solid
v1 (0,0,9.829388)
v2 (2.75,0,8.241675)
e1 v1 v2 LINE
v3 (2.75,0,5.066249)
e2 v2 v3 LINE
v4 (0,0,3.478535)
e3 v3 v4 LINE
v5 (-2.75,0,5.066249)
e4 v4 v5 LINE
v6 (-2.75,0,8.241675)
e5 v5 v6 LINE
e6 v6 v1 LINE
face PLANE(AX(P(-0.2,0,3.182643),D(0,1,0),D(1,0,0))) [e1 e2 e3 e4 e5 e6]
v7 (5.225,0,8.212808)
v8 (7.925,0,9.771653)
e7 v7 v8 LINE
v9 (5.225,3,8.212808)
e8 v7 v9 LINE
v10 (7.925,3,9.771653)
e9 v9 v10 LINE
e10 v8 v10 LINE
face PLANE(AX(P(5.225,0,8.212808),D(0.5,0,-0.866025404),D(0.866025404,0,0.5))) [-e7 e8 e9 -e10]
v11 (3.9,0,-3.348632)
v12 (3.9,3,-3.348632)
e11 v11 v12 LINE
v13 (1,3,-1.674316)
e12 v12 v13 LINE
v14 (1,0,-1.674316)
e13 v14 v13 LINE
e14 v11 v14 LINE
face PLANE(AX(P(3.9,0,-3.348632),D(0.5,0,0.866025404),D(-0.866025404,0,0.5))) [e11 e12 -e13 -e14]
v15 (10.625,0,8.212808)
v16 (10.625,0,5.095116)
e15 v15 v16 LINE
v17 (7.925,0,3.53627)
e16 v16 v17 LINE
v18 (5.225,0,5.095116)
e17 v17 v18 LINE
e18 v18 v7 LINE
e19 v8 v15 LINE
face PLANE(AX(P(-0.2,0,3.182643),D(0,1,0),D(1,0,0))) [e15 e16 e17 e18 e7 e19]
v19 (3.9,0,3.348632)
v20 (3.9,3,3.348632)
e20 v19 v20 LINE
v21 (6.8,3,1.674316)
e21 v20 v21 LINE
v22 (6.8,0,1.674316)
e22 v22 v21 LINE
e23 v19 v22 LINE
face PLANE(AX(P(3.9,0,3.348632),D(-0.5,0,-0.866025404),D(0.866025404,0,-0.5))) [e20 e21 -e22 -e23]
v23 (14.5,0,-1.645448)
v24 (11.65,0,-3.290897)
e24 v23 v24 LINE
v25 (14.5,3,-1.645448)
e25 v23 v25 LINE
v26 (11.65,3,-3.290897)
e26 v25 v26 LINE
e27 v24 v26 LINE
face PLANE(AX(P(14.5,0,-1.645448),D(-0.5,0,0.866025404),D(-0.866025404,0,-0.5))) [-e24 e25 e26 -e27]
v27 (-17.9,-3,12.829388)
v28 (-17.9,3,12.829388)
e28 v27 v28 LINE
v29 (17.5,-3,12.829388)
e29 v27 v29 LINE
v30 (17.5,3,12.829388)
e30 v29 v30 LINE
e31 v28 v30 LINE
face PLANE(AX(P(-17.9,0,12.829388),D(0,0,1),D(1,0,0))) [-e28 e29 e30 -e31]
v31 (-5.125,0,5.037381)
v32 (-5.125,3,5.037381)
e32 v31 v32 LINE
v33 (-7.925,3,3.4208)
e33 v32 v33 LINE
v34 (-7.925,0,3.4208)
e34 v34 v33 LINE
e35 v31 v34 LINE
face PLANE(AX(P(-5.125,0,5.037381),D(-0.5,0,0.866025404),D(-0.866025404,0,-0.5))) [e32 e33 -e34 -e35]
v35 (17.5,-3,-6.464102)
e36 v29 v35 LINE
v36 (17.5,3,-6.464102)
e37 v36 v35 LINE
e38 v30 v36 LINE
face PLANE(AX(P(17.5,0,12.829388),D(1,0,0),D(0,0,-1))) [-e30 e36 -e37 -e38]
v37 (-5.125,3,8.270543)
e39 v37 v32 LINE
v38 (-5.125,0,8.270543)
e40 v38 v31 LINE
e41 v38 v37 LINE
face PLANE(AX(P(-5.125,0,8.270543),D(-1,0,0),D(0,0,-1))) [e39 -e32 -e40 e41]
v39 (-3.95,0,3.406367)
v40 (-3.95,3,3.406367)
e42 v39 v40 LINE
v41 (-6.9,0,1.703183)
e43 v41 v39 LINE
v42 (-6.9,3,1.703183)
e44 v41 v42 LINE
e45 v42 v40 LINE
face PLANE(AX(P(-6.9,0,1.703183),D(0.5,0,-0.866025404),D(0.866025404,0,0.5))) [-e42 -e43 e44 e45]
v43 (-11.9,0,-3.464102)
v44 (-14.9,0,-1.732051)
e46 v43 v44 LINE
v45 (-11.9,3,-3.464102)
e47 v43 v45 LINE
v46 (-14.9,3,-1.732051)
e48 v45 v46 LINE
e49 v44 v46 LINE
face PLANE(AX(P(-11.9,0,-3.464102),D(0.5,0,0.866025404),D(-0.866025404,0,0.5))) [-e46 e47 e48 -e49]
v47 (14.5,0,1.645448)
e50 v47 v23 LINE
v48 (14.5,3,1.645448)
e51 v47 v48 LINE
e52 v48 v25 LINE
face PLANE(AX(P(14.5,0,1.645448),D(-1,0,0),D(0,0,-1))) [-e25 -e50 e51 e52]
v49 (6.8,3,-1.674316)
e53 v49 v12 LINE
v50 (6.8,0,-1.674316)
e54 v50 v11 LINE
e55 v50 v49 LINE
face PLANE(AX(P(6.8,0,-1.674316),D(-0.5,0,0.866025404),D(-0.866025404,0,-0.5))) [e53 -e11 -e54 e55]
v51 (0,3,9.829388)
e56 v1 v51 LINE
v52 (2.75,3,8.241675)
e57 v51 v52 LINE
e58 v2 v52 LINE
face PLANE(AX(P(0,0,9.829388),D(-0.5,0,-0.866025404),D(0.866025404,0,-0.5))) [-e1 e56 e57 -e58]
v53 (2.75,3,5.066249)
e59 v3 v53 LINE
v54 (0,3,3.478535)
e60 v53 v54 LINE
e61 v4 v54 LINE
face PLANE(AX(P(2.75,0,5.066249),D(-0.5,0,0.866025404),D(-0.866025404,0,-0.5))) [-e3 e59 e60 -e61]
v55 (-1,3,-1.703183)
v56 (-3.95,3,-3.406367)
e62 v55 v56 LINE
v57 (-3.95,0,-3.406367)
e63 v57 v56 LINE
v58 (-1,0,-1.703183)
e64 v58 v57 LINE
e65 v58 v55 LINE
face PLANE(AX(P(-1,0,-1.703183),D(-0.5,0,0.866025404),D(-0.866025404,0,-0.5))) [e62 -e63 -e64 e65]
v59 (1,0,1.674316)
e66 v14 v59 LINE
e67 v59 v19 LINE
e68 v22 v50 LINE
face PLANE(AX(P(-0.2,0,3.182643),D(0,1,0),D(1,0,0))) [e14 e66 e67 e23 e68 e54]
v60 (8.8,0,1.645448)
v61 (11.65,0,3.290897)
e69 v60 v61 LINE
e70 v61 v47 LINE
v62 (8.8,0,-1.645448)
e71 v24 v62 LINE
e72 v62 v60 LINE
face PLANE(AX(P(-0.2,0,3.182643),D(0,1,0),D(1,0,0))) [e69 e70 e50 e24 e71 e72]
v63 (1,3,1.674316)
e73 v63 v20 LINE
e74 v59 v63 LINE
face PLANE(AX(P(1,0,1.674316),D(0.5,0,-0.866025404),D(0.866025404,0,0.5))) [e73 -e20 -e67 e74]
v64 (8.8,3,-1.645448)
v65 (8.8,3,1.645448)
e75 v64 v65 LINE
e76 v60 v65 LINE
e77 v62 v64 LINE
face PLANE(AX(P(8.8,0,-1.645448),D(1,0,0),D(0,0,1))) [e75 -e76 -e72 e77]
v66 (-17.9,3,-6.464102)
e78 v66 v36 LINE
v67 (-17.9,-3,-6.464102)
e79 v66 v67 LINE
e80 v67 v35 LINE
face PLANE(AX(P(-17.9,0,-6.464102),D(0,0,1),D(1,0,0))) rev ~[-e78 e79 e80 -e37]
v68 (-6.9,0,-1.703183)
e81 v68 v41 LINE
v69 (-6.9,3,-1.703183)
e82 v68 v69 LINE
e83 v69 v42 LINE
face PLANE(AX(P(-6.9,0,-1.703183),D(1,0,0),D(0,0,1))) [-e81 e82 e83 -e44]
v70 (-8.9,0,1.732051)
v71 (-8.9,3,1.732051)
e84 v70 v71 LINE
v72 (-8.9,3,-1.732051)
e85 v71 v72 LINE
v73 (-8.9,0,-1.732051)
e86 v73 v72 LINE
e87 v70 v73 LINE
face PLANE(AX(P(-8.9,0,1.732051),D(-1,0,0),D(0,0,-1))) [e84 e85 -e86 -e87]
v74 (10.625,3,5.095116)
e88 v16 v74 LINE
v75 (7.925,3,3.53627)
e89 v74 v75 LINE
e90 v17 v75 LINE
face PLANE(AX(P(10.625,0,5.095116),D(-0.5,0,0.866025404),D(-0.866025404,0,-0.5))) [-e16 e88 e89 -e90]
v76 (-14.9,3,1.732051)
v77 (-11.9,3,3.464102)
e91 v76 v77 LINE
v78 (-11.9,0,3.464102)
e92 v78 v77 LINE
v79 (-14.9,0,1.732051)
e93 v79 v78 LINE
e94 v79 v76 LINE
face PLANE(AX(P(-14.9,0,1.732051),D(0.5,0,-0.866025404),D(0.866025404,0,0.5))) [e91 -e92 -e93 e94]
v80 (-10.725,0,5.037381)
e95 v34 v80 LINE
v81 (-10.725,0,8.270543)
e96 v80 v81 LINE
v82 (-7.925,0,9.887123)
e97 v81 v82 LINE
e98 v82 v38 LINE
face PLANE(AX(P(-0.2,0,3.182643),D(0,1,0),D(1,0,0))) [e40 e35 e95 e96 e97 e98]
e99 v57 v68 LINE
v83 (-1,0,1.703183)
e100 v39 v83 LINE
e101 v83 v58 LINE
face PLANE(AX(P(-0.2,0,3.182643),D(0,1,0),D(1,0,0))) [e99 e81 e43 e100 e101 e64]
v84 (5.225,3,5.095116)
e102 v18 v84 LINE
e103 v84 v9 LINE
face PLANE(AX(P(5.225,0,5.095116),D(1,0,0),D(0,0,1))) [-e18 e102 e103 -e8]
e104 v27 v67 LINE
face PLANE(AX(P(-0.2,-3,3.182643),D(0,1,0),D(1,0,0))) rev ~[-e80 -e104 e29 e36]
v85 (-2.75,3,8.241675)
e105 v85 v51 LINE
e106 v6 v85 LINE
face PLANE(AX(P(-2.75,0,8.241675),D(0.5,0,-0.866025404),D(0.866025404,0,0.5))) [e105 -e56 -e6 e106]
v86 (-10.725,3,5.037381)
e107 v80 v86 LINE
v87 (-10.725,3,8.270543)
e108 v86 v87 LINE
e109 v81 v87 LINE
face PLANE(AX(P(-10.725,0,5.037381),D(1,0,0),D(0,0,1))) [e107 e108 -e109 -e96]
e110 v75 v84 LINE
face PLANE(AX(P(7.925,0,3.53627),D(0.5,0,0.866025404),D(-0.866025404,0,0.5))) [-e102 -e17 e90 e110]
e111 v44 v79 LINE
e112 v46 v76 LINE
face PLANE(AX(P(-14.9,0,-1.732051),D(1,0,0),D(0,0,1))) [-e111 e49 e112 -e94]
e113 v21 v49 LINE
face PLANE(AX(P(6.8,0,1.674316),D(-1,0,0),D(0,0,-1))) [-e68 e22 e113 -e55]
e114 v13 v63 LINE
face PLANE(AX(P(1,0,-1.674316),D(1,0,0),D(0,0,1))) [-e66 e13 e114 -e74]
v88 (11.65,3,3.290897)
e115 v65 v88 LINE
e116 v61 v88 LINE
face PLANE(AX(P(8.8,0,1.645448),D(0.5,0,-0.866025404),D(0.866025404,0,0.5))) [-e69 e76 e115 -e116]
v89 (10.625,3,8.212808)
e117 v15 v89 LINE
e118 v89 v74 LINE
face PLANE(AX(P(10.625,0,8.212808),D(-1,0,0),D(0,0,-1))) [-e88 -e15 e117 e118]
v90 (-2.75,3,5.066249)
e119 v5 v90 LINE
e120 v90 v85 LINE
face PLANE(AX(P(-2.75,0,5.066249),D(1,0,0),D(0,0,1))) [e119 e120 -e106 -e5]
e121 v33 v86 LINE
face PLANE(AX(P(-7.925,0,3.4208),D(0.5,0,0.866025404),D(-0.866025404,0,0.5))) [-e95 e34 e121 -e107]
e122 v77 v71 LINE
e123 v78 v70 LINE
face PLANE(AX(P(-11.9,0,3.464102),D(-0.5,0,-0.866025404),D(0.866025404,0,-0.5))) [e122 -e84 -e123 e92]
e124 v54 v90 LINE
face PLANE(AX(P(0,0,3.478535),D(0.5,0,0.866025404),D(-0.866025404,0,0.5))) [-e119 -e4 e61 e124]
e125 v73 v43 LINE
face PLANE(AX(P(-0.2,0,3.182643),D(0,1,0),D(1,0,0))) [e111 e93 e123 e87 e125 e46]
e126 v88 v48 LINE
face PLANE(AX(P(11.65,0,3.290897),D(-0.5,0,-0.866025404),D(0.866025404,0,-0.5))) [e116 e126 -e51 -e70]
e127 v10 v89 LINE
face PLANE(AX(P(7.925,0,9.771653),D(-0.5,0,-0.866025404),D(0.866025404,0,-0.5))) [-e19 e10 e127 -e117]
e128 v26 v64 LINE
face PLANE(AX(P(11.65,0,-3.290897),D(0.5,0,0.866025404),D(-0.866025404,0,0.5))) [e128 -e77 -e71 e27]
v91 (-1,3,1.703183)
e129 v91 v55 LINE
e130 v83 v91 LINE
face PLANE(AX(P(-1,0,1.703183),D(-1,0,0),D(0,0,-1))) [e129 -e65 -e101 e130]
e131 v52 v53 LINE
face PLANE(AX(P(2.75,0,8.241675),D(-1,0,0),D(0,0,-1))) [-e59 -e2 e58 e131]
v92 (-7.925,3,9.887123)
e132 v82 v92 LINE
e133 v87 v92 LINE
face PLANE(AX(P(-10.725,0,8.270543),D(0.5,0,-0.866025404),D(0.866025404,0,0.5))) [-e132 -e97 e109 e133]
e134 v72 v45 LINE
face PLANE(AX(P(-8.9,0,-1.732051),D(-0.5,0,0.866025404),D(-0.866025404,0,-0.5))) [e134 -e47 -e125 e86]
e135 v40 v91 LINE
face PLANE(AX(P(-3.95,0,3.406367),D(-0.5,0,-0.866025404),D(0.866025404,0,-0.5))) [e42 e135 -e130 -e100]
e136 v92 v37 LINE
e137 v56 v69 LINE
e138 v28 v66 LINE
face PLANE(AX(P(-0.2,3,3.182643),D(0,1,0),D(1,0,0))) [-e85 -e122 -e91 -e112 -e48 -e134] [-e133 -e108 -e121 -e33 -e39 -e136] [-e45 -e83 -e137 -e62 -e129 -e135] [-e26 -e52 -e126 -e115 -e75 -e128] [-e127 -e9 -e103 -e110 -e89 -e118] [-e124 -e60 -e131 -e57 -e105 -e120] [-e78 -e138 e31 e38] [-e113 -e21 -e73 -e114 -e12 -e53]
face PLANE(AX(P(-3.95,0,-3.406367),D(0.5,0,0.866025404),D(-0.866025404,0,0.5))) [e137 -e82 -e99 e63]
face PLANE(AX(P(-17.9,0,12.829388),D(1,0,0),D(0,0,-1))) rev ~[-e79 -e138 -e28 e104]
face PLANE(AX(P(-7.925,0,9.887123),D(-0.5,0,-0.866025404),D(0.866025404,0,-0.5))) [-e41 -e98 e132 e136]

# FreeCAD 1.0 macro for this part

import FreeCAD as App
import Part
import Sketcher
from FreeCAD import Vector
Q = App.Units.Quantity


def add_polygon(sketch, points):
    """Adds a closed chain of lines whose ends are joined by coincident constraints."""
    first, n = sketch.GeometryCount, len(points)
    for a, b in zip(points, points[1:] + points[:1]):
        sketch.addGeometry(Part.LineSegment(App.Vector(*a, 0), App.Vector(*b, 0)), False)
    for i in range(n):
        sketch.addConstraint(Sketcher.Constraint("Coincident", first + i, 2, first + (i + 1) % n, 1))

doc = App.newDocument("Part")
body = doc.addObject("PartDesign::Body", "Body")

sketch1 = body.newObject("Sketcher::SketchObject", "Sketch")
sketch1.AttachmentSupport = (doc.getObject("XZ_Plane"), [""])
sketch1.MapMode = "FlatFace"
add_polygon(sketch1, [(-17.9, -6.464102), (-17.9, 12.829388), (17.5, 12.829388), (17.5, -6.464102)])
add_polygon(sketch1, [(-10.725, 5.037381), (-7.925, 3.4208), (-5.125, 5.037381), (-5.125, 8.270543), (-7.925, 9.887123), (-10.725, 8.270543)])
add_polygon(sketch1, [(-2.75, 5.066249), (0, 3.478535), (2.75, 5.066249), (2.75, 8.241675), (0, 9.829388), (-2.75, 8.241675)])
add_polygon(sketch1, [(5.225, 5.095116), (7.925, 3.53627), (10.625, 5.095116), (10.625, 8.212808), (7.925, 9.771653), (5.225, 8.212808)])
add_polygon(sketch1, [(-8.9, -1.732051), (-8.9, 1.732051), (-11.9, 3.464102), (-14.9, 1.732051), (-14.9, -1.732051), (-11.9, -3.464102)])
add_polygon(sketch1, [(-1, -1.703183), (-1, 1.703183), (-3.95, 3.406367), (-6.9, 1.703183), (-6.9, -1.703183), (-3.95, -3.406367)])
add_polygon(sketch1, [(6.8, -1.674316), (6.8, 1.674316), (3.9, 3.348632), (1, 1.674316), (1, -1.674316), (3.9, -3.348632)])
add_polygon(sketch1, [(14.5, -1.645448), (14.5, 1.645448), (11.65, 3.290897), (8.8, 1.645448), (8.8, -1.645448), (11.65, -3.290897)])
sketch1.addConstraint([
    Sketcher.Constraint("Vertical", 0),
    Sketcher.Constraint("Horizontal", 1),
    Sketcher.Constraint("Vertical", 2),
    Sketcher.Constraint("Horizontal", 3),
    Sketcher.Constraint("Vertical", 6),
    Sketcher.Constraint("Vertical", 9),
    Sketcher.Constraint("Vertical", 12),
    Sketcher.Constraint("Vertical", 15),
    Sketcher.Constraint("Vertical", 18),
    Sketcher.Constraint("Vertical", 21),
    Sketcher.Constraint("Vertical", 22),
    Sketcher.Constraint("Vertical", 25),
    Sketcher.Constraint("Vertical", 28),
    Sketcher.Constraint("Vertical", 31),
    Sketcher.Constraint("Vertical", 34),
    Sketcher.Constraint("Vertical", 37),
    Sketcher.Constraint("Vertical", 40),
    Sketcher.Constraint("Vertical", 43),
    Sketcher.Constraint("Symmetric", 12, 2, 14, 2, -2),
    Sketcher.Constraint("Symmetric", 23, 2, 26, 2, -1),
    Sketcher.Constraint("Symmetric", 29, 2, 32, 2, -1),
    Sketcher.Constraint("Symmetric", 35, 2, 38, 2, -1),
    Sketcher.Constraint("Symmetric", 41, 2, 44, 2, -1),
    Sketcher.Constraint("PointOnObject", 10, 2, -2),
    Sketcher.Constraint("PointOnObject", 13, 2, -2),
    Sketcher.Constraint("Parallel", 4, 7),
    Sketcher.Constraint("Parallel", 5, 8),
    Sketcher.Constraint("Parallel", 7, 10),
    Sketcher.Constraint("Parallel", 8, 11),
    Sketcher.Constraint("Parallel", 10, 13),
    Sketcher.Constraint("Parallel", 11, 14),
    Sketcher.Constraint("Parallel", 13, 16),
    Sketcher.Constraint("Parallel", 14, 17),
    Sketcher.Constraint("Parallel", 16, 19),
    Sketcher.Constraint("Parallel", 17, 20),
    Sketcher.Constraint("Parallel", 19, 23),
    Sketcher.Constraint("Parallel", 20, 24),
    Sketcher.Constraint("Parallel", 23, 26),
    Sketcher.Constraint("Parallel", 24, 27),
    Sketcher.Constraint("Parallel", 26, 29),
    Sketcher.Constraint("Parallel", 27, 30),
    Sketcher.Constraint("Parallel", 29, 32),
    Sketcher.Constraint("Parallel", 30, 33),
    Sketcher.Constraint("Parallel", 32, 35),
    Sketcher.Constraint("Parallel", 33, 36),
    Sketcher.Constraint("Parallel", 35, 38),
    Sketcher.Constraint("Parallel", 36, 39),
    Sketcher.Constraint("Parallel", 38, 41),
    Sketcher.Constraint("Parallel", 39, 42),
    Sketcher.Constraint("Parallel", 41, 44),
    Sketcher.Constraint("Parallel", 42, 45),
    Sketcher.Constraint("Horizontal", 6, 2, 8, 2),
    Sketcher.Constraint("Horizontal", 5, 2, 9, 2),
    Sketcher.Constraint("Horizontal", 18, 2, 20, 2),
    Sketcher.Constraint("Horizontal", 17, 2, 21, 2),
    Sketcher.Constraint("Horizontal", 22, 2, 24, 2),
    Sketcher.Constraint("Horizontal", 28, 2, 30, 2),
    Sketcher.Constraint("Horizontal", 34, 2, 36, 2),
    Sketcher.Constraint("Horizontal", 40, 2, 42, 2),
    Sketcher.Constraint("Angle", 4, Q("-30 deg")),
    Sketcher.Constraint("DistanceX", 1, 1, 1, 2, Q("35.4 mm")),
    Sketcher.Constraint("DistanceX", 28, 2, -1, 1, Q("1 mm")),
    Sketcher.Constraint("DistanceX", -1, 1, 36, 2, Q("1 mm")),
    Sketcher.Constraint("DistanceX", 23, 2, 22, 2, Q("3 mm")),
    Sketcher.Constraint("DistanceX", 3, 2, 25, 2, Q("3 mm")),
    Sketcher.Constraint("DistanceY", 3, 2, 26, 2, Q("3 mm")),
    Sketcher.Constraint("DistanceX", 22, 2, 30, 2, Q("2 mm")),
    Sketcher.Constraint("DistanceX", 34, 2, 42, 2, Q("2 mm")),
    Sketcher.Constraint("DistanceX", 45, 2, 2, 2, Q("3 mm")),
    Sketcher.Constraint("DistanceX", 0, 2, -1, 1, Q("17.9 mm")),
    Sketcher.Constraint("DistanceX", -1, 1, 34, 2, Q("6.8 mm")),
    Sketcher.Constraint("DistanceX", 4, 2, 5, 2, Q("2.8 mm")),
    Sketcher.Constraint("DistanceX", 14, 2, 12, 2, Q("5.5 mm")),
    Sketcher.Constraint("DistanceX", 16, 2, 17, 2, Q("2.7 mm")),
    Sketcher.Constraint("DistanceY", 22, 1, 22, 2, Q("3.464102 mm")),
    Sketcher.Constraint("DistanceX", 4, 2, -1, 1, Q("7.925 mm")),
    Sketcher.Constraint("DistanceX", -1, 1, 16, 2, Q("7.925 mm")),
    Sketcher.Constraint("DistanceY", 0, 1, 0, 2, Q("19.29349 mm")),
    Sketcher.Constraint("DistanceY", 6, 1, 6, 2, Q("3.233162 mm")),
    Sketcher.Constraint("DistanceY", 18, 1, 18, 2, Q("3.117691 mm")),
    Sketcher.Constraint("DistanceY", 34, 1, 34, 2, Q("3.348632 mm")),
    Sketcher.Constraint("DistanceY", -1, 1, 4, 2, Q("3.4208 mm")),
    Sketcher.Constraint("DistanceY", 34, 2, 21, 2, Q("3.4208 mm")),
    Sketcher.Constraint("DistanceY", 33, 2, 36, 2, Q("3.377499 mm")),
    Sketcher.Constraint("DistanceY", 12, 1, 12, 2, Q("3.175426 mm")),
    Sketcher.Constraint("DistanceY", 40, 1, 40, 2, Q("3.290897 mm")),
    Sketcher.Constraint("DistanceY", -1, 1, 11, 2, Q("5.066249 mm")),
])
pad1 = body.newObject("PartDesign::Pad", "Pad")
pad1.Profile = sketch1
pad1.Length = 3
pad1.Reversed = True

sketch2 = body.newObject("Sketcher::SketchObject", "Sketch001")
sketch2.AttachmentSupport = (doc.getObject("XZ_Plane"), [""])
sketch2.MapMode = "FlatFace"
add_polygon(sketch2, [(-17.9, -6.464102), (-17.9, 12.829388), (17.5, 12.829388), (17.5, -6.464102)])
sketch2.addConstraint([
    Sketcher.Constraint("Vertical", 0),
    Sketcher.Constraint("Horizontal", 1),
    Sketcher.Constraint("Vertical", 2),
    Sketcher.Constraint("Horizontal", 3),
    Sketcher.Constraint("DistanceX", 1, 1, 1, 2, Q("35.4 mm")),
    Sketcher.Constraint("DistanceX", 0, 2, -1, 1, Q("17.9 mm")),
    Sketcher.Constraint("DistanceY", 0, 1, 0, 2, Q("19.29349 mm")),
    Sketcher.Constraint("DistanceY", 2, 2, -1, 1, Q("6.464102 mm")),
])
pad2 = body.newObject("PartDesign::Pad", "Pad001")
pad2.Profile = sketch2
pad2.Length = 3

doc.recompute()
